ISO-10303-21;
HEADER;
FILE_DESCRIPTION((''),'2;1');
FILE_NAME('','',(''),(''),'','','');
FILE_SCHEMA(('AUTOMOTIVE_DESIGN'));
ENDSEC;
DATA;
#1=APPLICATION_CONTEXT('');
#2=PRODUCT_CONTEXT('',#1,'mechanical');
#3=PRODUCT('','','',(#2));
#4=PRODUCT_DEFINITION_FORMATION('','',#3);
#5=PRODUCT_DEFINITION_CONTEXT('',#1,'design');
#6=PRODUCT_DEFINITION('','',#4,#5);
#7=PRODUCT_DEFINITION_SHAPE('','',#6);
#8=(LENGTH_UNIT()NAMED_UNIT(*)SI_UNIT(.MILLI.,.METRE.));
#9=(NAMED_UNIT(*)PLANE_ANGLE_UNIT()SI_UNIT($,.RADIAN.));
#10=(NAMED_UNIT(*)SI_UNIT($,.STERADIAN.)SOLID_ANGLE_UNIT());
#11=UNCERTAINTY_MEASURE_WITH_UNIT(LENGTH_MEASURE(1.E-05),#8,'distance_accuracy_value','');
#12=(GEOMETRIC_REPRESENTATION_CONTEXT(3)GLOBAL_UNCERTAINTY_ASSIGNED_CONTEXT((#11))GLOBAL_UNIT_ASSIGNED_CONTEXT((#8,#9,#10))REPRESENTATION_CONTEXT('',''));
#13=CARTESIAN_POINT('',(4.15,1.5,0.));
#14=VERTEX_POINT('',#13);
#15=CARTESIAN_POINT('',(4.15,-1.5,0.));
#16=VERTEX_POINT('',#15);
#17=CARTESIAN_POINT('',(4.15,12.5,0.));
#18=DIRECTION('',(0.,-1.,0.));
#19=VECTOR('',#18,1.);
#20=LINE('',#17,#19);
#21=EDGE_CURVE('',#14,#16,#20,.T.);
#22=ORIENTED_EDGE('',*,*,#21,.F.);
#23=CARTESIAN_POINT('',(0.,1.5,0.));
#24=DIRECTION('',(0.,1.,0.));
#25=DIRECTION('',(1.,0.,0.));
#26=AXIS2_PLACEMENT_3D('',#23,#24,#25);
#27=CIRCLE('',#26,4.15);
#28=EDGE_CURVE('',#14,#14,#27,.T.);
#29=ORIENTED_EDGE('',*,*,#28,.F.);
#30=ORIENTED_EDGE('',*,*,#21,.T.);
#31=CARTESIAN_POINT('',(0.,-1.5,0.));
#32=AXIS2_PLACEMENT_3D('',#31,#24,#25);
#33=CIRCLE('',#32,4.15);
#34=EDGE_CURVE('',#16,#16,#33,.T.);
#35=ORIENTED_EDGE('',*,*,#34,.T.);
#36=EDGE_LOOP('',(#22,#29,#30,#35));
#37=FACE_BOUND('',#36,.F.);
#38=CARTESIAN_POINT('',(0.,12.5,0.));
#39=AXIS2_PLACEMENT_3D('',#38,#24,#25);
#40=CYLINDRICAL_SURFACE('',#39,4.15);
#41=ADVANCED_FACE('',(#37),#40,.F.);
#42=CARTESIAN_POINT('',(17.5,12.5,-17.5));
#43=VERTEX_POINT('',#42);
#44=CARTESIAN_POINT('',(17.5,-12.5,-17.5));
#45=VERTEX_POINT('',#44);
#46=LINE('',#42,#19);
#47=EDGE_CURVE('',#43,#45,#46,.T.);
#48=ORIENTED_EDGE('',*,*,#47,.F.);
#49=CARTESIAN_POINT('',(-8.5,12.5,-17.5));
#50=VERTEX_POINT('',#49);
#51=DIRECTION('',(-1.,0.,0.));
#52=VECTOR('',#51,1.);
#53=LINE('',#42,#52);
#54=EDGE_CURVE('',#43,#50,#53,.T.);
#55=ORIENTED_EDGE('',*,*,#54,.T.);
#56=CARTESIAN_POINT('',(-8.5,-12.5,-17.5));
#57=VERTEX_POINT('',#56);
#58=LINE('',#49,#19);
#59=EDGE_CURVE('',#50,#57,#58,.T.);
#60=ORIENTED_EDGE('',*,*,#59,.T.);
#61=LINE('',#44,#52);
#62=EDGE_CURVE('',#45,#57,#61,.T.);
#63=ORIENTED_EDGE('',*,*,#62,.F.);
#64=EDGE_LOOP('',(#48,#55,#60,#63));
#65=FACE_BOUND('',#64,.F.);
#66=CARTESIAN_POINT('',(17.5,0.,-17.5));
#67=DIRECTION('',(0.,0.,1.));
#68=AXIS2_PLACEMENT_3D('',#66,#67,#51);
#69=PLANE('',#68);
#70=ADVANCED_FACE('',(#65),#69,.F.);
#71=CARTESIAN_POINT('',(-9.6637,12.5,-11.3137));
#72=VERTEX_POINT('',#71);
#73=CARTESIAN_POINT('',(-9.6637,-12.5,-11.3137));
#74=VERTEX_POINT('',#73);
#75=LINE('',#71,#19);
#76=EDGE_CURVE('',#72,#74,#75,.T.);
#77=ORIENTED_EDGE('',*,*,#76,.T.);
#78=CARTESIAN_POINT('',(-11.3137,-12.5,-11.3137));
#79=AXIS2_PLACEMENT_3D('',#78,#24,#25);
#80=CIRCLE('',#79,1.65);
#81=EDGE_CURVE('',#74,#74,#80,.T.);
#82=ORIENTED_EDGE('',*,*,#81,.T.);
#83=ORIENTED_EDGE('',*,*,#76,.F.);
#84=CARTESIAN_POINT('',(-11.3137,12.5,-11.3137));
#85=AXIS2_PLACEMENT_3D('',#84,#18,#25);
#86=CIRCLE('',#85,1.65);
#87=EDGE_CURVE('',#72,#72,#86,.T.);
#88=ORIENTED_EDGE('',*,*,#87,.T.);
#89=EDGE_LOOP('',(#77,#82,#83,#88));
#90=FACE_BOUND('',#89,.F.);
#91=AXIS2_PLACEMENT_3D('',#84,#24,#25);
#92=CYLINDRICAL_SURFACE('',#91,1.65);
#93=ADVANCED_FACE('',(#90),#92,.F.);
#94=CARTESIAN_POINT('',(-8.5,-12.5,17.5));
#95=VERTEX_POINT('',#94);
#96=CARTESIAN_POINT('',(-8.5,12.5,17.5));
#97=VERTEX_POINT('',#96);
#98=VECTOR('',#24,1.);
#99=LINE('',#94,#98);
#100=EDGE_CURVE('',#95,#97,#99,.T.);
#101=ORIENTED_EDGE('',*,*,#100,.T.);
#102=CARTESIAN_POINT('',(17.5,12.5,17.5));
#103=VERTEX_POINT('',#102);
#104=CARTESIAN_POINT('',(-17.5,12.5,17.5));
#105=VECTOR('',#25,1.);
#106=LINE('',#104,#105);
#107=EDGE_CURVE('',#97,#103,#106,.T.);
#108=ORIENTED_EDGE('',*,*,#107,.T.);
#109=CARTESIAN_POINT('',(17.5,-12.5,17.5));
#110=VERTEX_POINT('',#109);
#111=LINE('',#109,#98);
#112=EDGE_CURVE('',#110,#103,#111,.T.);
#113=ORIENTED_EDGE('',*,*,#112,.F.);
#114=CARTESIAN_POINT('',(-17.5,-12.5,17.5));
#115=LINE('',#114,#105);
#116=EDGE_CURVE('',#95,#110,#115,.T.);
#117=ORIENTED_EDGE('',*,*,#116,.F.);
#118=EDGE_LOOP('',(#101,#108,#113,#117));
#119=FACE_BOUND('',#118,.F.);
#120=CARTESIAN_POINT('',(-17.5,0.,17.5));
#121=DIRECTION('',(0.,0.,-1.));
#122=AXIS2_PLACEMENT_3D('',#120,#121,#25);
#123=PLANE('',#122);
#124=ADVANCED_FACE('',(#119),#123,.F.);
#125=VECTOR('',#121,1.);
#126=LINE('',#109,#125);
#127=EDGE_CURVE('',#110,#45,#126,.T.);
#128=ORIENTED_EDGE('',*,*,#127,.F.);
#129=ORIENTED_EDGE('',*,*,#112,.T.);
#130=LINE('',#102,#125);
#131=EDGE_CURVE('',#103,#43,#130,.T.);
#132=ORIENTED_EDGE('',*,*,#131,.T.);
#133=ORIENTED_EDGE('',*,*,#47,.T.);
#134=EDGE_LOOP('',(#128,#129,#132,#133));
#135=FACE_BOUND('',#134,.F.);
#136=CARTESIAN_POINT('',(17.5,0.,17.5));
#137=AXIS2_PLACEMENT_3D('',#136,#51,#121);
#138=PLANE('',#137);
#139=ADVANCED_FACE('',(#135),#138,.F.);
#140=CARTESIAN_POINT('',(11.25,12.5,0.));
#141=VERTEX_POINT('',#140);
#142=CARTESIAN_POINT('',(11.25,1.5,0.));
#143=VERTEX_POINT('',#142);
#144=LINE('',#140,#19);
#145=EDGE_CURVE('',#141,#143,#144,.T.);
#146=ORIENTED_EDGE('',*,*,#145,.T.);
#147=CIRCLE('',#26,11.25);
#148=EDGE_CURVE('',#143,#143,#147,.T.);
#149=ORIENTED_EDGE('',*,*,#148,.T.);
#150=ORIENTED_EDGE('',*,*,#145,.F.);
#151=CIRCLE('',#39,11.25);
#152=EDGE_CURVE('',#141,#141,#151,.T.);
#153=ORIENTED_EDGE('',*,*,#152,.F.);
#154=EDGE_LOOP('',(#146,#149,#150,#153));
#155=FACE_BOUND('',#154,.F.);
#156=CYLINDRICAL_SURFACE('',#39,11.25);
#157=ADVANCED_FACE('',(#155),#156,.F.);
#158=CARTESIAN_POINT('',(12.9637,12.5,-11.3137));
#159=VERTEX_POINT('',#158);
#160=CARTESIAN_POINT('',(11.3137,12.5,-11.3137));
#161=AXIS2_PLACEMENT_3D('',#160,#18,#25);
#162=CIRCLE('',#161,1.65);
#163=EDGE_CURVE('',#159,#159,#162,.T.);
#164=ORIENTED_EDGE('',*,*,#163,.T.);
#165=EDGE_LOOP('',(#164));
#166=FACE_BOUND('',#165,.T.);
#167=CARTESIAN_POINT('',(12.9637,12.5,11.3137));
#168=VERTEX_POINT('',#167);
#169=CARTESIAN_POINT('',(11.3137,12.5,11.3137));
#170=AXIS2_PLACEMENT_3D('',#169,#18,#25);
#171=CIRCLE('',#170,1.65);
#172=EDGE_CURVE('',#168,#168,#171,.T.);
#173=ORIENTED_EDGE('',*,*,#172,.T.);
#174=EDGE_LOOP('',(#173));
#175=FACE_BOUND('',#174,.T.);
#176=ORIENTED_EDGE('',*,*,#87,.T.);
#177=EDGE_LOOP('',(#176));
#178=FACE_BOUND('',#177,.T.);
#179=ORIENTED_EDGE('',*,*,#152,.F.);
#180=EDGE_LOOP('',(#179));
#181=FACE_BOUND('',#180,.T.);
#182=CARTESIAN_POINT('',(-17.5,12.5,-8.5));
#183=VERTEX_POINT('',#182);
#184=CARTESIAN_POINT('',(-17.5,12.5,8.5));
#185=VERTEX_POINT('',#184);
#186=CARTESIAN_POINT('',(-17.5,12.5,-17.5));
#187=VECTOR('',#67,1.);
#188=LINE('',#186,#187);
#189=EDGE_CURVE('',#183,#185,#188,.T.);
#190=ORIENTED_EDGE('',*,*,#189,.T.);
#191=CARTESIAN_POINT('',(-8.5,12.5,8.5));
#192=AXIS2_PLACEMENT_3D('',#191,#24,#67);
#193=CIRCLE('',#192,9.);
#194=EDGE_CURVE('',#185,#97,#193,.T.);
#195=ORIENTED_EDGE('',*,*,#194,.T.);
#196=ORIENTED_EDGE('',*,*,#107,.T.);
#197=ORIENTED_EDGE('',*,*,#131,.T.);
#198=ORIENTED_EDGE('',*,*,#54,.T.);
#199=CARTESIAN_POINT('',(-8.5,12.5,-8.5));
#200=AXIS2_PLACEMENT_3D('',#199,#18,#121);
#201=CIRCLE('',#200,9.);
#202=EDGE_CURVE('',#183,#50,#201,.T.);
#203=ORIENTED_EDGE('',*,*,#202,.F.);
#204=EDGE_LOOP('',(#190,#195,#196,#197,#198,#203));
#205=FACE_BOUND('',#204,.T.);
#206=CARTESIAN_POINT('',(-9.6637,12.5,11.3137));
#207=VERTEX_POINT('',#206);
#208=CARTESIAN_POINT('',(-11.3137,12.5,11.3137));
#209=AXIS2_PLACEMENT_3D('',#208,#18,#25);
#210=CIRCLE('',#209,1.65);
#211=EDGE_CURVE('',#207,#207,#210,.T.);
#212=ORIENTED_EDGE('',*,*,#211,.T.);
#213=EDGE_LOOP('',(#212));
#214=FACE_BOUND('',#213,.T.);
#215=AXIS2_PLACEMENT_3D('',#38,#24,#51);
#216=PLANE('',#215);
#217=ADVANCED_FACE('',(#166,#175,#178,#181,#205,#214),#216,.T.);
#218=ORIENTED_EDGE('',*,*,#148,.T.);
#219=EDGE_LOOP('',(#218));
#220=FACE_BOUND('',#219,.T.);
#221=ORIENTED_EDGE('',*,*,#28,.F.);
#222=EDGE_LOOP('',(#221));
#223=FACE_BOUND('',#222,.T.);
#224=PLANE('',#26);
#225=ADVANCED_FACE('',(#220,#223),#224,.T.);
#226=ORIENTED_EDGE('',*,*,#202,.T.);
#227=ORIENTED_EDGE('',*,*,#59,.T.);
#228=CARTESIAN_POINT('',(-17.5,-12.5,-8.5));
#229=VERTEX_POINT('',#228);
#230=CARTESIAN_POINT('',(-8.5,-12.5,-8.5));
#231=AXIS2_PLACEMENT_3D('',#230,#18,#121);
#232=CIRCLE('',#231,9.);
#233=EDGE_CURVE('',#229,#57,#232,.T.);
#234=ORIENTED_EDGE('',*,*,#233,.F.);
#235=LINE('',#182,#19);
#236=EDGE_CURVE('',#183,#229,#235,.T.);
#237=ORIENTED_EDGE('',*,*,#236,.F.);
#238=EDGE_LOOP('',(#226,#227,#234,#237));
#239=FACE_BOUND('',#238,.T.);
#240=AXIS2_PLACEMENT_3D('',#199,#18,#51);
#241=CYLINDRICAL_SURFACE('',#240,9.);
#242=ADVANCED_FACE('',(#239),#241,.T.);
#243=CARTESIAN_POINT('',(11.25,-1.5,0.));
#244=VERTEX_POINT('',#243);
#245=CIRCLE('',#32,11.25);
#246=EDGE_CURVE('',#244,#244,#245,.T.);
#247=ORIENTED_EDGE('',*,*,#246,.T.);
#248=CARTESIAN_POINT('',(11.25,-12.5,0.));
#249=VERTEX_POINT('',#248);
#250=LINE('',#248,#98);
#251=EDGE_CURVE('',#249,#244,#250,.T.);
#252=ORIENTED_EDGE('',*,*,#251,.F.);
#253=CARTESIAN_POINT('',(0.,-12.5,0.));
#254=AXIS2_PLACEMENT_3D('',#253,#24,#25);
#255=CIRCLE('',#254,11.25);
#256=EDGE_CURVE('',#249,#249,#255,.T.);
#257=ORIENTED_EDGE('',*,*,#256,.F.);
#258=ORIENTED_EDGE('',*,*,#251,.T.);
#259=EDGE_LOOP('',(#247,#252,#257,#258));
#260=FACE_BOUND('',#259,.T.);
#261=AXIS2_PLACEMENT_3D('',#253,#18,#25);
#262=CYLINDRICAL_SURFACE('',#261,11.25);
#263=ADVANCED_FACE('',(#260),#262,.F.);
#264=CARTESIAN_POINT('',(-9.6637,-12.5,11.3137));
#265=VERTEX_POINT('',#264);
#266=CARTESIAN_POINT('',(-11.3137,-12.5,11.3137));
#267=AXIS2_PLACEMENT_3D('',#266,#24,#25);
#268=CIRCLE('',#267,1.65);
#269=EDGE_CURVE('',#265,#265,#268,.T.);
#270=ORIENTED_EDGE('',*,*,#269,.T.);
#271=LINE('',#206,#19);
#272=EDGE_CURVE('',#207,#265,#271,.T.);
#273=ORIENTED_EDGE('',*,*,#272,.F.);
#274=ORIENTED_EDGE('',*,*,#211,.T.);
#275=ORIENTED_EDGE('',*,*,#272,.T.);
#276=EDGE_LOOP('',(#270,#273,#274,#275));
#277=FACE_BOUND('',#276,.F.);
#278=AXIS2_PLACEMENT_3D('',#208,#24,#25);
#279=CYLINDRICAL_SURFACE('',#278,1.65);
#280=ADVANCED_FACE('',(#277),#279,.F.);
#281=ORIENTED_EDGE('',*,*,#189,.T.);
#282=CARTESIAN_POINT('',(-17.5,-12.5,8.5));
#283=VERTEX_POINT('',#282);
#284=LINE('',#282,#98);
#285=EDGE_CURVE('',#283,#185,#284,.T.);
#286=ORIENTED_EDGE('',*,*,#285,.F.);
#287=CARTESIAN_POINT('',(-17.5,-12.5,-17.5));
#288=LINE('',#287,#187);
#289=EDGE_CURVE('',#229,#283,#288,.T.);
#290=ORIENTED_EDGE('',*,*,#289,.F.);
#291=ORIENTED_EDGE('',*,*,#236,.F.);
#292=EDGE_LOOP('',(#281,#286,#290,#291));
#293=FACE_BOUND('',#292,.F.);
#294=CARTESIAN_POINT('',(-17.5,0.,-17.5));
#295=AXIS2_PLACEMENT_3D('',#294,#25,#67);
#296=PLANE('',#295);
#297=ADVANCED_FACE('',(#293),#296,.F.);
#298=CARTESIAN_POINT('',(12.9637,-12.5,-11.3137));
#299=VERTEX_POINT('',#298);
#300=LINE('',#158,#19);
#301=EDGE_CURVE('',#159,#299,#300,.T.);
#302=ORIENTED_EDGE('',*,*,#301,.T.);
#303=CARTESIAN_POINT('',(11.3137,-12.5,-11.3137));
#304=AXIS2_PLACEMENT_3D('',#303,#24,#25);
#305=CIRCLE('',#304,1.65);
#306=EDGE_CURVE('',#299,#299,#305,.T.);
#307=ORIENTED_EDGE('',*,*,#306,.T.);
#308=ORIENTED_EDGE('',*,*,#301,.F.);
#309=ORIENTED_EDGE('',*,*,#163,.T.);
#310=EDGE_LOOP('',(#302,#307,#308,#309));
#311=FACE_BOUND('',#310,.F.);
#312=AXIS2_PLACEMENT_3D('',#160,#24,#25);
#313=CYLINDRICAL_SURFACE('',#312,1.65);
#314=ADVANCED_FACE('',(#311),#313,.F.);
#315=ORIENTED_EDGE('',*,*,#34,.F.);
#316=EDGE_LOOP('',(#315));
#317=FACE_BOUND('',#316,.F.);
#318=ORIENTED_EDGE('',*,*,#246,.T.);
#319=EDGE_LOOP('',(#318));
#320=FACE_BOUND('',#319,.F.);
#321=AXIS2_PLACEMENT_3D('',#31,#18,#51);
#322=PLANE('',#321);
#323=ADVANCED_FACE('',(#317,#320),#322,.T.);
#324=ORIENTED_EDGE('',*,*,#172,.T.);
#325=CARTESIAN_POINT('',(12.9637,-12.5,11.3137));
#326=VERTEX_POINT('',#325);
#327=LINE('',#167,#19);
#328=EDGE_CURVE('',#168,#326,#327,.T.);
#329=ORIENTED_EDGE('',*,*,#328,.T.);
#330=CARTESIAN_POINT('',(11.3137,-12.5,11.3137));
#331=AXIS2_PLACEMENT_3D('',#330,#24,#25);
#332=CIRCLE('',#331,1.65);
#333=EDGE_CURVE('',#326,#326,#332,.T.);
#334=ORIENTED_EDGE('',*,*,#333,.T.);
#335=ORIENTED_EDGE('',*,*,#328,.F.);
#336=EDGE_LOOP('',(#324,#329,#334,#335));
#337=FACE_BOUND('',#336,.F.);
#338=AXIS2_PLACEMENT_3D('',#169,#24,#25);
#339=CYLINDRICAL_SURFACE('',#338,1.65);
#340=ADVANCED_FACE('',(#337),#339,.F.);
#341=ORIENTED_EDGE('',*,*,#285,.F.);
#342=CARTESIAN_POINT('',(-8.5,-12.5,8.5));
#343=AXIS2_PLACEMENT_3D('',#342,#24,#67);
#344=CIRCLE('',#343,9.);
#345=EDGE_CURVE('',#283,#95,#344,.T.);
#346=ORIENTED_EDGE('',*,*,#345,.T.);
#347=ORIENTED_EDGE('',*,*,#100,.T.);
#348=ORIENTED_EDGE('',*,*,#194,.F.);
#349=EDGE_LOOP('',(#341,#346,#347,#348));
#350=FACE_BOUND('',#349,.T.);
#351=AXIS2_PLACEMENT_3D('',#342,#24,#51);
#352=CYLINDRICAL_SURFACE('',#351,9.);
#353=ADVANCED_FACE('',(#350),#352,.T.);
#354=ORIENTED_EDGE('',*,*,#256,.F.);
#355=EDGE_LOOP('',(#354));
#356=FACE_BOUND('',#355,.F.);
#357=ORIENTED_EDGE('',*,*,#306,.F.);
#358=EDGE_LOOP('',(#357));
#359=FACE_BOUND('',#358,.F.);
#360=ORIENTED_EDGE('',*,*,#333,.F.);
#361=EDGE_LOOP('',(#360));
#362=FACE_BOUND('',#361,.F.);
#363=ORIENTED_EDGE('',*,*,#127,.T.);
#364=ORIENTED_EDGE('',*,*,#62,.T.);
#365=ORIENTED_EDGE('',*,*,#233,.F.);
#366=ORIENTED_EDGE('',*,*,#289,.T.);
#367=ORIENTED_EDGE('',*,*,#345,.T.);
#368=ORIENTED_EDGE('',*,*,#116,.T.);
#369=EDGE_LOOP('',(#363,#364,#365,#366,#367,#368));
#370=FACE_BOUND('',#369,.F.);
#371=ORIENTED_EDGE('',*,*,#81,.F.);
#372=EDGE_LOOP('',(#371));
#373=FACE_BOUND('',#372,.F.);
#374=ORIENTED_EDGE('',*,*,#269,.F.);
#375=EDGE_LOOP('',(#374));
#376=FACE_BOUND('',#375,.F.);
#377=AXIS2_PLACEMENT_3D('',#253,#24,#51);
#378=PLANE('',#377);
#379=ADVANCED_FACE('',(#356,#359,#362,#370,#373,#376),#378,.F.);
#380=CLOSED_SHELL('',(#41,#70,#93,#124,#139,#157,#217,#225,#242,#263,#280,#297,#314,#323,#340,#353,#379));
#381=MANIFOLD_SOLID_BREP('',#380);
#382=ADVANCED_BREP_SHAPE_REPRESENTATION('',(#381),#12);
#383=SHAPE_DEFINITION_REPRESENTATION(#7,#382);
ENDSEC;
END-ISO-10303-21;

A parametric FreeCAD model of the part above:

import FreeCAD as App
import Part
import Sketcher


def edges_at(feature, points):
    """Names of the edges that pass closest to the given points."""
    edges = feature.Shape.Edges
    near = lambda p: min(range(len(edges)), key=lambda i: edges[i].distToShape(Part.Vertex(*p))[0])
    return sorted({f"Edge{near(p) + 1}" for p in points})


def add_polygon(sketch, points):
    """Adds a closed chain of lines whose ends are joined by coincident constraints."""
    first, n = sketch.GeometryCount, len(points)
    for a, b in zip(points, points[1:] + points[:1]):
        sketch.addGeometry(Part.LineSegment(App.Vector(*a, 0), App.Vector(*b, 0)), False)
    for i in range(n):
        sketch.addConstraint(Sketcher.Constraint("Coincident", first + i, 2, first + (i + 1) % n, 1))

doc = App.newDocument("Part")
body = doc.addObject("PartDesign::Body", "Body")

# Sketch on XZ plane
sketch1 = body.newObject("Sketcher::SketchObject", "Sketch")
sketch1.AttachmentSupport = (doc.getObject("XZ_Plane"), [""])
sketch1.MapMode = "FlatFace"
add_polygon(sketch1, [(-18, -18), (-18, 18), (18, 18), (18, -18)])  # lines 0-3
sketch1.addConstraint([
    Sketcher.Constraint("Vertical", 0),
    Sketcher.Constraint("Horizontal", 1),
    Sketcher.Constraint("Vertical", 2),
    Sketcher.Constraint("Horizontal", 3),
    Sketcher.Constraint("Symmetric", 0, 2, 2, 2, -1, 1),
    Sketcher.Constraint("Equal", 3, 0),
    Sketcher.Constraint("DistanceX", 1, 1, 1, 2, 35.0),
])
pad1 = body.newObject("PartDesign::Pad", "Pad")
pad1.Profile = sketch1
pad1.Length = 25
pad1.Midplane = True

# Sketch on XZ plane
sketch2 = body.newObject("Sketcher::SketchObject", "Sketch001")
sketch2.AttachmentSupport = (doc.getObject("XZ_Plane"), [""])
sketch2.MapMode = "FlatFace"
sketch2.AttachmentOffset = App.Placement(App.Vector(0, 0, -12.5), App.Rotation())
sketch2.addGeometry(Part.Circle(App.Vector(0, 0, 0), App.Vector(0, 0, 1), 4.2), False)
sketch2.addConstraint([
    Sketcher.Constraint("Coincident", 0, 3, -1, 1),
    Sketcher.Constraint("Diameter", 0, 8.3),
])
pocket1 = body.newObject("PartDesign::Pocket", "Pocket")
pocket1.Profile = sketch2
pocket1.Length = 25
pocket1.Reversed = True

# Sketch on XZ plane
sketch3 = body.newObject("Sketcher::SketchObject", "Sketch002")
sketch3.AttachmentSupport = (doc.getObject("XZ_Plane"), [""])
sketch3.MapMode = "FlatFace"
sketch3.AttachmentOffset = App.Placement(App.Vector(0, 0, -12.5), App.Rotation())
sketch3.addGeometry(Part.Circle(App.Vector(0, 0, 0), App.Vector(0, 0, 1), 11), False)
sketch3.addConstraint([
    Sketcher.Constraint("Coincident", 0, 3, -1, 1),
    Sketcher.Constraint("Diameter", 0, 22.5),
])
pocket2 = body.newObject("PartDesign::Pocket", "Pocket001")
pocket2.Profile = sketch3
pocket2.Length = 11
pocket2.Reversed = True

# Sketch on XZ plane
sketch4 = body.newObject("Sketcher::SketchObject", "Sketch003")
sketch4.AttachmentSupport = (doc.getObject("XZ_Plane"), [""])
sketch4.MapMode = "FlatFace"
sketch4.AttachmentOffset = App.Placement(App.Vector(0, 0, -12.5), App.Rotation())
sketch4.addGeometry([
    Part.Circle(App.Vector(11.3, -11.3, 0), App.Vector(0, 0, 1), 1.6),
    Part.Circle(App.Vector(11.3, 11.3, 0), App.Vector(0, 0, 1), 1.6),
    Part.Circle(App.Vector(-11.3, -11.3, 0), App.Vector(0, 0, 1), 1.6),
    Part.Circle(App.Vector(-11.3, 11.3, 0), App.Vector(0, 0, 1), 1.6),
], False)
sketch4.addConstraint([
    Sketcher.Constraint("Equal", 0, 1),
    Sketcher.Constraint("Equal", 1, 2),
    Sketcher.Constraint("Equal", 2, 3),
    Sketcher.Constraint("Symmetric", 1, 3, 2, 3, -1, 1),
    Sketcher.Constraint("Symmetric", 0, 3, 3, 3, -1, 1),
    Sketcher.Constraint("Symmetric", 0, 3, 2, 3, -2),
    Sketcher.Constraint("Diameter", 0, 3.3),
    Sketcher.Constraint("DistanceX", -1, 1, 0, 3, 11.3137),
    Sketcher.Constraint("DistanceY", 0, 3, -1, 1, 11.3137),
])
pocket3 = body.newObject("PartDesign::Pocket", "Pocket002")
pocket3.Profile = sketch4
pocket3.Length = 25
pocket3.Reversed = True
doc.recompute()

fillet = body.newObject("PartDesign::Fillet", "Fillet")
fillet.Base = (pocket3, edges_at(pocket3, [(-17.5, 0, -17.5), (-17.5, 0, 17.5)]))
fillet.Radius = 9
doc.recompute()

mirrored = body.newObject("PartDesign::Mirrored", "Mirrored")
mirrored.Originals = [pocket2]
mirrored.MirrorPlane = (doc.getObject("XZ_Plane"), [""])
body.Tip = mirrored

doc.recompute()
